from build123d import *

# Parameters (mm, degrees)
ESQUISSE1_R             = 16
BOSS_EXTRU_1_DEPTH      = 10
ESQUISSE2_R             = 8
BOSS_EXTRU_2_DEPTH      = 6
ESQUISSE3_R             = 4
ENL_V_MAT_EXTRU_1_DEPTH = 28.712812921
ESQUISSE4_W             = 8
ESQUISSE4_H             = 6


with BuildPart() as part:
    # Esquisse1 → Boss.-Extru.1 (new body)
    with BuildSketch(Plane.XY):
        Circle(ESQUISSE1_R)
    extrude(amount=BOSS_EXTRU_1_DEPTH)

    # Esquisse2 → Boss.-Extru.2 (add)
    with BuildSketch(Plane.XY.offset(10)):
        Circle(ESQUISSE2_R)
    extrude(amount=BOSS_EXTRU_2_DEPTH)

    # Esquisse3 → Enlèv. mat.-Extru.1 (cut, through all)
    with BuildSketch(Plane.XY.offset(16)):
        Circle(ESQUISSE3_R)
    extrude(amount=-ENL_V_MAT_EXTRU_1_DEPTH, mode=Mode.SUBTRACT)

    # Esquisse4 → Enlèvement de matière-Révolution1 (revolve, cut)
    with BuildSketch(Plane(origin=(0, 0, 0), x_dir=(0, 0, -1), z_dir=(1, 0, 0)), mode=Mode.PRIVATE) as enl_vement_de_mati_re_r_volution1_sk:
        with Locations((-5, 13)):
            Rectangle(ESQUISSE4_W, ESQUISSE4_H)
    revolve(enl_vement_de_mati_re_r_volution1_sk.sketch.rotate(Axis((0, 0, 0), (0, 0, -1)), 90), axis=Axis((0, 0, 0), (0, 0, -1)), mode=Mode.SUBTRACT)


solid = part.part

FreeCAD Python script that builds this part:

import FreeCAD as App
import Part
import Sketcher
from FreeCAD import Vector


def add_polygon(sketch, points):
    """Adds a closed chain of lines whose ends are joined by coincident constraints."""
    first, n = sketch.GeometryCount, len(points)
    for a, b in zip(points, points[1:] + points[:1]):
        sketch.addGeometry(Part.LineSegment(App.Vector(*a, 0), App.Vector(*b, 0)), False)
    for i in range(n):
        sketch.addConstraint(Sketcher.Constraint("Coincident", first + i, 2, first + (i + 1) % n, 1))

doc = App.newDocument("Part")
body = doc.addObject("PartDesign::Body", "Body")

# Sketch on XY plane
sketch1 = body.newObject("Sketcher::SketchObject", "Sketch")
sketch1.AttachmentSupport = (doc.getObject("XY_Plane"), [""])
sketch1.MapMode = "FlatFace"
sketch1.addGeometry(Part.Circle(Vector(0, 0, 0), Vector(0, 0, 1), 16), False)
sketch1.addConstraint([
    Sketcher.Constraint("Coincident", 0, 3, -1, 1),
    Sketcher.Constraint("Diameter", 0, 32.0),
])
pad1 = body.newObject("PartDesign::Pad", "Pad")
pad1.Profile = sketch1
pad1.Length = 10

# Sketch on XY plane
sketch2 = body.newObject("Sketcher::SketchObject", "Sketch001")
sketch2.AttachmentSupport = (doc.getObject("XY_Plane"), [""])
sketch2.MapMode = "FlatFace"
sketch2.AttachmentOffset = App.Placement(Vector(0, 0, 10), App.Rotation())
sketch2.addGeometry(Part.Circle(Vector(0, 0, 0), Vector(0, 0, 1), 8), False)
sketch2.addConstraint([
    Sketcher.Constraint("Coincident", 0, 3, -1, 1),
    Sketcher.Constraint("Diameter", 0, 16.0),
])
pad2 = body.newObject("PartDesign::Pad", "Pad001")
pad2.Profile = sketch2
pad2.Length = 6

# Sketch on XY plane
sketch3 = body.newObject("Sketcher::SketchObject", "Sketch002")
sketch3.AttachmentSupport = (doc.getObject("XY_Plane"), [""])
sketch3.MapMode = "FlatFace"
sketch3.AttachmentOffset = App.Placement(Vector(0, 0, 16), App.Rotation())
sketch3.addGeometry(Part.Circle(Vector(0, 0, 0), Vector(0, 0, 1), 4), False)
sketch3.addConstraint([
    Sketcher.Constraint("Coincident", 0, 3, -1, 1),
    Sketcher.Constraint("Diameter", 0, 8.0),
])
pocket1 = body.newObject("PartDesign::Pocket", "Pocket")
pocket1.Profile = sketch3
pocket1.Type = "ThroughAll"

# Sketch on YZ plane
sketch4 = body.newObject("Sketcher::SketchObject", "Sketch003")
sketch4.AttachmentSupport = (doc.getObject("YZ_Plane"), [""])
sketch4.MapMode = "FlatFace"
add_polygon(sketch4, [(16, 9), (10, 9), (10, 1), (16, 1)])  # lines 0-3
sketch4.addConstraint([
    Sketcher.Constraint("Horizontal", 0),
    Sketcher.Constraint("Vertical", 1),
    Sketcher.Constraint("Horizontal", 2),
    Sketcher.Constraint("Vertical", 3),
    Sketcher.Constraint("DistanceX", 0, 2, 0, 1, 6.0),
    Sketcher.Constraint("DistanceY", 1, 2, 1, 1, 8.0),
    Sketcher.Constraint("DistanceX", -1, 1, 0, 2, 10.0),
    Sketcher.Constraint("DistanceY", -1, 1, 0, 2, 9.0),
])
groove = body.newObject("PartDesign::Groove", "Groove")
groove.Profile = sketch4
groove.ReferenceAxis = (sketch4, ["V_Axis"])
groove.Angle = 360

doc.recompute()
